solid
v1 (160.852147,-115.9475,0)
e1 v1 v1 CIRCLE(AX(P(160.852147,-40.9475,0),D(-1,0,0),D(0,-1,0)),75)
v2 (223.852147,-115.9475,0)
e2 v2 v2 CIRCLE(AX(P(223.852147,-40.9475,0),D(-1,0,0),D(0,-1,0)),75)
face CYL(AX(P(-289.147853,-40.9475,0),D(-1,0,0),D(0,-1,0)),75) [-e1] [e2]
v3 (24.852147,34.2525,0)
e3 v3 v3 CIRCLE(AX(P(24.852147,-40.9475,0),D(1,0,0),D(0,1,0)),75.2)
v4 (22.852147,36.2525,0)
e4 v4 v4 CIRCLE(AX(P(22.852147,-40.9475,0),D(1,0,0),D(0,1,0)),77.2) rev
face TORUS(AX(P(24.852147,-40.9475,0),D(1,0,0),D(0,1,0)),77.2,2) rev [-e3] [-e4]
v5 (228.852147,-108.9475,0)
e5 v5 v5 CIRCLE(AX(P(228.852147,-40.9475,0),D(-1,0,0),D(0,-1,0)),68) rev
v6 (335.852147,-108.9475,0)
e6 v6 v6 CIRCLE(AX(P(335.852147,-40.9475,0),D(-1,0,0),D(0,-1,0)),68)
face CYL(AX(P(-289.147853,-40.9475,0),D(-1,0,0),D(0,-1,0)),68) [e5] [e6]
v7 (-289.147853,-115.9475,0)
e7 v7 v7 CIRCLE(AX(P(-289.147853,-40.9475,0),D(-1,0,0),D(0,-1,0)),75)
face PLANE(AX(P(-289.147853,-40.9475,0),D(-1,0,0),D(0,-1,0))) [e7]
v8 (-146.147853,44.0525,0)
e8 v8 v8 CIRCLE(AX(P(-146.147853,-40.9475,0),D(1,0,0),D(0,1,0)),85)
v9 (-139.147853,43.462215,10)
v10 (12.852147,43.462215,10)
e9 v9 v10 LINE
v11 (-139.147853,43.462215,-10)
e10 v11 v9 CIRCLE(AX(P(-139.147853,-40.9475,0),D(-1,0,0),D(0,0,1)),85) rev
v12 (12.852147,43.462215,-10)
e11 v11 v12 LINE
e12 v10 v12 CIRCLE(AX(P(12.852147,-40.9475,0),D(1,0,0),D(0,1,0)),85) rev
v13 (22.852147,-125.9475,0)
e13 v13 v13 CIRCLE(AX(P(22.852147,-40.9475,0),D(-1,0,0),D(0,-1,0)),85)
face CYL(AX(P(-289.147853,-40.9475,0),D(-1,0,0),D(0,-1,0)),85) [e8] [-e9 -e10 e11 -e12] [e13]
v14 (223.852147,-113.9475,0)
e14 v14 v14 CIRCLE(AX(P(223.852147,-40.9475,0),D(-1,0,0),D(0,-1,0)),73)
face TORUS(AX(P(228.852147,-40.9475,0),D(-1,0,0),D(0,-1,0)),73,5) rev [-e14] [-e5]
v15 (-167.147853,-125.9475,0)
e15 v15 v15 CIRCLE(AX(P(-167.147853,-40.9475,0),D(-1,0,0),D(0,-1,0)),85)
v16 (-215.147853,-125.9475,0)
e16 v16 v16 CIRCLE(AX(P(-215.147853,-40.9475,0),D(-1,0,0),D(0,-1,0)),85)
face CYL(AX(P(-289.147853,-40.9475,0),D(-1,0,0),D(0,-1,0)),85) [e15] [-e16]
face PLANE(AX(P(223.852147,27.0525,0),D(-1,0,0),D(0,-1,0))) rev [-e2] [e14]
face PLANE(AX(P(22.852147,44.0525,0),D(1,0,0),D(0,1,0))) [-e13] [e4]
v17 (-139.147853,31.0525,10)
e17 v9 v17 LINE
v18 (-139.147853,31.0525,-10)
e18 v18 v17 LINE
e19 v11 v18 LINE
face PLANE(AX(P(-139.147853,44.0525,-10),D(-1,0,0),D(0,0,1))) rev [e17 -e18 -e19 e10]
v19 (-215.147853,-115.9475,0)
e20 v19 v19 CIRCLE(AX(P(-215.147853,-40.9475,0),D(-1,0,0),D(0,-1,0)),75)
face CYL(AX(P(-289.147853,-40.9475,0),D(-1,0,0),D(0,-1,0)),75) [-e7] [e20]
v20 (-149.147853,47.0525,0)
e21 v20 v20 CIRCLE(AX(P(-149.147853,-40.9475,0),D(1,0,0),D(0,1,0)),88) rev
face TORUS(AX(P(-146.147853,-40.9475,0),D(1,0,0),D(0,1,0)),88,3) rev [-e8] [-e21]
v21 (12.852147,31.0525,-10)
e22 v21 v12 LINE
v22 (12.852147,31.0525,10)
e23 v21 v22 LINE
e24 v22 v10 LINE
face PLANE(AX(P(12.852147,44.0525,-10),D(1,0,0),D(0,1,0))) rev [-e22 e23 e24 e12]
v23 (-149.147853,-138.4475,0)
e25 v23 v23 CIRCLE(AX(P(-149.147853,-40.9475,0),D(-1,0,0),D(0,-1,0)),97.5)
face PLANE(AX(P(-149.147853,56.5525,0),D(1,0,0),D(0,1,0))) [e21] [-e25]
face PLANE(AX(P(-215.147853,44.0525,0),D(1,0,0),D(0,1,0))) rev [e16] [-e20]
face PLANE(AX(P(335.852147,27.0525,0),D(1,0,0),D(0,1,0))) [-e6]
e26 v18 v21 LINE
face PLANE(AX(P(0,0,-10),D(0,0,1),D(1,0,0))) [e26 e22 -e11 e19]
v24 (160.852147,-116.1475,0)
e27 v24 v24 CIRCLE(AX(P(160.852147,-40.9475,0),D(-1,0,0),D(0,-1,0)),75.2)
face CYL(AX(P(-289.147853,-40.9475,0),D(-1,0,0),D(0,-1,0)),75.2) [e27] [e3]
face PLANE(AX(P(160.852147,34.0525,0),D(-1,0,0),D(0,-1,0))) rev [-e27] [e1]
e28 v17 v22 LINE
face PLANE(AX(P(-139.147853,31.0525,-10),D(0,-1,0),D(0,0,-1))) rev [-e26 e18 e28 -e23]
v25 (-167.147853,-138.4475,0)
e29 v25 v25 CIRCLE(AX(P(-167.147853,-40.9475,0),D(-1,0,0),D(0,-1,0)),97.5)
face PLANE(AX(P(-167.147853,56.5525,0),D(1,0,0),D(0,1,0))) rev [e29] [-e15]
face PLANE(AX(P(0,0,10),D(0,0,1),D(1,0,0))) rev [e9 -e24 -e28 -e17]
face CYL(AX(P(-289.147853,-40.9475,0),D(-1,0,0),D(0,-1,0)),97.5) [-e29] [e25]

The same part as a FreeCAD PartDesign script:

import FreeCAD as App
import Part
import Sketcher

V = App.Vector


def edges_at(feature, points):
    """Names of the edges that pass closest to the given points."""
    edges = feature.Shape.Edges
    near = lambda p: min(range(len(edges)), key=lambda i: edges[i].distToShape(Part.Vertex(*p))[0])
    return sorted({f"Edge{near(p) + 1}" for p in points})

doc = App.newDocument("Part")
params = doc.addObject("Spreadsheet::Sheet", "Params")
for row, (alias, value) in enumerate([
    ("sketch1_width", "625 mm"),
    ("sketch1_width2", "112 mm"),
    ("sketch1_width3", "63 mm"),
    ("sketch1_width4", "138 mm"),
    ("sketch1_width5", "172 mm"),
    ("revolution_angle", "360 deg"),
    ("fillet_radius", "3 mm"),
    ("fillet2_radius", "2 mm"),
    ("fillet3_radius", "5 mm"),
    ("sketch2_width", "152 mm"),
    ("sketch2_height", "13 mm"),
    ("pocket1_length", "20 mm"),
], start=1):
    params.set(f"A{row}", alias)
    params.set(f"B{row}", "=" + value)
    params.setAlias(f"B{row}", alias)

body = doc.addObject("PartDesign::Body", "Body")

# Sketch on XY plane
sketch1 = doc.addObject("Sketcher::SketchObject", "Sketch")
body.addObject(sketch1)
sketch1.AttachmentSupport = (doc.XY_Plane, [""])
sketch1.MapMode = "FlatFace"
sketch1.addGeometry(Part.LineSegment(V(-289.15, -40.95, 0), V(335.85, -40.95, 0)), False)
sketch1.addGeometry(Part.LineSegment(V(335.85, -40.95, 0), V(335.85, 27.05, 0)), False)
sketch1.addGeometry(Part.LineSegment(V(335.85, 27.05, 0), V(223.85, 27.05, 0)), False)
sketch1.addGeometry(Part.LineSegment(V(223.85, 27.05, 0), V(223.85, 34.05, 0)), False)
sketch1.addGeometry(Part.LineSegment(V(223.85, 34.05, 0), V(160.85, 34.05, 0)), False)
sketch1.addGeometry(Part.LineSegment(V(160.85, 34.05, 0), V(160.85, 34.25, 0)), False)
sketch1.addGeometry(Part.LineSegment(V(160.85, 34.25, 0), V(22.85, 34.25, 0)), False)
sketch1.addGeometry(Part.LineSegment(V(22.85, 34.25, 0), V(22.85, 44.05, 0)), False)
sketch1.addGeometry(Part.LineSegment(V(22.85, 44.05, 0), V(-149.15, 44.05, 0)), False)
sketch1.addGeometry(Part.LineSegment(V(-149.15, 44.05, 0), V(-149.15, 56.55, 0)), False)
sketch1.addGeometry(Part.LineSegment(V(-149.15, 56.55, 0), V(-167.15, 56.55, 0)), False)
sketch1.addGeometry(Part.LineSegment(V(-167.15, 56.55, 0), V(-167.15, 44.05, 0)), False)
sketch1.addGeometry(Part.LineSegment(V(-167.15, 44.05, 0), V(-215.15, 44.05, 0)), False)
sketch1.addGeometry(Part.LineSegment(V(-215.15, 44.05, 0), V(-215.15, 34.05, 0)), False)
sketch1.addGeometry(Part.LineSegment(V(-215.15, 34.05, 0), V(-289.15, 34.05, 0)), False)
sketch1.addGeometry(Part.LineSegment(V(-289.15, 34.05, 0), V(-289.15, -40.95, 0)), False)
sketch1.addGeometry(Part.LineSegment(V(-289.15, -40.95, 0), V(335.85, -40.95, 0)), True)  # axis
sketch1.addConstraint(Sketcher.Constraint("Coincident", 0, 2, 1, 1))
sketch1.addConstraint(Sketcher.Constraint("Coincident", 1, 2, 2, 1))
sketch1.addConstraint(Sketcher.Constraint("Coincident", 2, 2, 3, 1))
sketch1.addConstraint(Sketcher.Constraint("Coincident", 3, 2, 4, 1))
sketch1.addConstraint(Sketcher.Constraint("Coincident", 4, 2, 5, 1))
sketch1.addConstraint(Sketcher.Constraint("Coincident", 5, 2, 6, 1))
sketch1.addConstraint(Sketcher.Constraint("Coincident", 6, 2, 7, 1))
sketch1.addConstraint(Sketcher.Constraint("Coincident", 7, 2, 8, 1))
sketch1.addConstraint(Sketcher.Constraint("Coincident", 8, 2, 9, 1))
sketch1.addConstraint(Sketcher.Constraint("Coincident", 9, 2, 10, 1))
sketch1.addConstraint(Sketcher.Constraint("Coincident", 10, 2, 11, 1))
sketch1.addConstraint(Sketcher.Constraint("Coincident", 11, 2, 12, 1))
sketch1.addConstraint(Sketcher.Constraint("Coincident", 12, 2, 13, 1))
sketch1.addConstraint(Sketcher.Constraint("Coincident", 13, 2, 14, 1))
sketch1.addConstraint(Sketcher.Constraint("Coincident", 14, 2, 15, 1))
sketch1.addConstraint(Sketcher.Constraint("Coincident", 15, 2, 0, 1))
sketch1.addConstraint(Sketcher.Constraint("Horizontal", 0))
sketch1.addConstraint(Sketcher.Constraint("Vertical", 1))
sketch1.addConstraint(Sketcher.Constraint("Horizontal", 2))
sketch1.addConstraint(Sketcher.Constraint("Vertical", 3))
sketch1.addConstraint(Sketcher.Constraint("Horizontal", 4))
sketch1.addConstraint(Sketcher.Constraint("Vertical", 5))
sketch1.addConstraint(Sketcher.Constraint("Horizontal", 6))
sketch1.addConstraint(Sketcher.Constraint("Vertical", 7))
sketch1.addConstraint(Sketcher.Constraint("Horizontal", 8))
sketch1.addConstraint(Sketcher.Constraint("Vertical", 9))
sketch1.addConstraint(Sketcher.Constraint("Horizontal", 10))
sketch1.addConstraint(Sketcher.Constraint("Vertical", 11))
sketch1.addConstraint(Sketcher.Constraint("Horizontal", 12))
sketch1.addConstraint(Sketcher.Constraint("Vertical", 13))
sketch1.addConstraint(Sketcher.Constraint("Horizontal", 14))
sketch1.addConstraint(Sketcher.Constraint("Vertical", 15))
sketch1.addConstraint(Sketcher.Constraint("Horizontal", 16))
sketch1.addConstraint(Sketcher.Constraint("Coincident", 16, 1, 15, 2))
sketch1.addConstraint(Sketcher.Constraint("Horizontal", 8, 2, 11, 2))
sketch1.addConstraint(Sketcher.Constraint("Horizontal", 4, 2, 13, 2))
sketch1.addConstraint(Sketcher.Constraint("Vertical", 1, 2, 16, 2))
sketch1.addConstraint(Sketcher.Constraint("DistanceX", 0, 1, 0, 2, 625.0))
sketch1.addConstraint(Sketcher.Constraint("DistanceX", 2, 2, 2, 1, 112.0))
sketch1.addConstraint(Sketcher.Constraint("DistanceX", 4, 2, 4, 1, 63.0))
sketch1.addConstraint(Sketcher.Constraint("DistanceX", 6, 2, 6, 1, 138.0))
sketch1.addConstraint(Sketcher.Constraint("DistanceX", 8, 2, 8, 1, 172.0))
sketch1.addConstraint(Sketcher.Constraint("DistanceX", 10, 2, 10, 1, 18.0))
sketch1.addConstraint(Sketcher.Constraint("DistanceX", 12, 2, 12, 1, 48.0))
sketch1.addConstraint(Sketcher.Constraint("DistanceY", 1, 1, 1, 2, 68.0))
sketch1.addConstraint(Sketcher.Constraint("DistanceY", 3, 1, 3, 2, 7.0))
sketch1.addConstraint(Sketcher.Constraint("DistanceY", 13, 2, 13, 1, 10.0))
sketch1.addConstraint(Sketcher.Constraint("DistanceY", 5, 1, 5, 2, 0.2))
sketch1.addConstraint(Sketcher.Constraint("DistanceY", 9, 1, 9, 2, 12.5))
sketch1.addConstraint(Sketcher.Constraint("DistanceY", 0, 2, -1, 1, 40.9475))
sketch1.addConstraint(Sketcher.Constraint("DistanceX", -1, 1, 0, 2, 335.852147))
sketch1.setExpression("Constraints[37]", "Params.sketch1_width")
sketch1.setExpression("Constraints[38]", "Params.sketch1_width2")
sketch1.setExpression("Constraints[39]", "Params.sketch1_width3")
sketch1.setExpression("Constraints[40]", "Params.sketch1_width4")
sketch1.setExpression("Constraints[41]", "Params.sketch1_width5")
revolution = doc.addObject("PartDesign::Revolution", "Revolution")
body.addObject(revolution)
revolution.Profile = sketch1
revolution.ReferenceAxis = (sketch1, ["Axis0"])
revolution.setExpression("Angle", "Params.revolution_angle")
doc.recompute()

fillet = doc.addObject("PartDesign::Fillet", "Fillet")
body.addObject(fillet)
fillet.Base = (revolution, edges_at(revolution, [(-149.148, 44.053, 0)]))
fillet.setExpression("Radius", "Params.fillet_radius")
doc.recompute()

fillet2 = doc.addObject("PartDesign::Fillet", "Fillet001")
body.addObject(fillet2)
fillet2.Base = (fillet, edges_at(fillet, [(22.852, 34.253, 0)]))
fillet2.setExpression("Radius", "Params.fillet2_radius")
doc.recompute()

fillet3 = doc.addObject("PartDesign::Fillet", "Fillet002")
body.addObject(fillet3)
fillet3.Base = (fillet2, edges_at(fillet2, [(223.852, 27.053, 0)]))
fillet3.setExpression("Radius", "Params.fillet3_radius")

# Sketch on XY plane
sketch2 = doc.addObject("Sketcher::SketchObject", "Sketch001")
body.addObject(sketch2)
sketch2.AttachmentSupport = (doc.XY_Plane, [""])
sketch2.MapMode = "FlatFace"
sketch2.addGeometry(Part.LineSegment(V(-139, 44, 0), V(-139, 31, 0)), False)
sketch2.addGeometry(Part.LineSegment(V(-139, 31, 0), V(13, 31, 0)), False)
sketch2.addGeometry(Part.LineSegment(V(13, 31, 0), V(13, 44, 0)), False)
sketch2.addGeometry(Part.LineSegment(V(13, 44, 0), V(-139, 44, 0)), False)
sketch2.addConstraint(Sketcher.Constraint("Coincident", 0, 2, 1, 1))
sketch2.addConstraint(Sketcher.Constraint("Coincident", 1, 2, 2, 1))
sketch2.addConstraint(Sketcher.Constraint("Coincident", 2, 2, 3, 1))
sketch2.addConstraint(Sketcher.Constraint("Coincident", 3, 2, 0, 1))
sketch2.addConstraint(Sketcher.Constraint("Vertical", 0))
sketch2.addConstraint(Sketcher.Constraint("Horizontal", 1))
sketch2.addConstraint(Sketcher.Constraint("Vertical", 2))
sketch2.addConstraint(Sketcher.Constraint("Horizontal", 3))
sketch2.addConstraint(Sketcher.Constraint("DistanceX", 1, 1, 1, 2, 152.0))
sketch2.addConstraint(Sketcher.Constraint("DistanceY", 0, 2, 0, 1, 13.0))
sketch2.addConstraint(Sketcher.Constraint("DistanceY", -1, 1, 0, 2, 31.0525))
sketch2.addConstraint(Sketcher.Constraint("DistanceX", 0, 2, -1, 1, 139.147853))
sketch2.setExpression("Constraints[8]", "Params.sketch2_width")
sketch2.setExpression("Constraints[9]", "Params.sketch2_height")
pocket1 = doc.addObject("PartDesign::Pocket", "Pocket")
body.addObject(pocket1)
pocket1.Profile = sketch2
pocket1.setExpression("Length", "Params.pocket1_length")
pocket1.Midplane = True

doc.recompute()
